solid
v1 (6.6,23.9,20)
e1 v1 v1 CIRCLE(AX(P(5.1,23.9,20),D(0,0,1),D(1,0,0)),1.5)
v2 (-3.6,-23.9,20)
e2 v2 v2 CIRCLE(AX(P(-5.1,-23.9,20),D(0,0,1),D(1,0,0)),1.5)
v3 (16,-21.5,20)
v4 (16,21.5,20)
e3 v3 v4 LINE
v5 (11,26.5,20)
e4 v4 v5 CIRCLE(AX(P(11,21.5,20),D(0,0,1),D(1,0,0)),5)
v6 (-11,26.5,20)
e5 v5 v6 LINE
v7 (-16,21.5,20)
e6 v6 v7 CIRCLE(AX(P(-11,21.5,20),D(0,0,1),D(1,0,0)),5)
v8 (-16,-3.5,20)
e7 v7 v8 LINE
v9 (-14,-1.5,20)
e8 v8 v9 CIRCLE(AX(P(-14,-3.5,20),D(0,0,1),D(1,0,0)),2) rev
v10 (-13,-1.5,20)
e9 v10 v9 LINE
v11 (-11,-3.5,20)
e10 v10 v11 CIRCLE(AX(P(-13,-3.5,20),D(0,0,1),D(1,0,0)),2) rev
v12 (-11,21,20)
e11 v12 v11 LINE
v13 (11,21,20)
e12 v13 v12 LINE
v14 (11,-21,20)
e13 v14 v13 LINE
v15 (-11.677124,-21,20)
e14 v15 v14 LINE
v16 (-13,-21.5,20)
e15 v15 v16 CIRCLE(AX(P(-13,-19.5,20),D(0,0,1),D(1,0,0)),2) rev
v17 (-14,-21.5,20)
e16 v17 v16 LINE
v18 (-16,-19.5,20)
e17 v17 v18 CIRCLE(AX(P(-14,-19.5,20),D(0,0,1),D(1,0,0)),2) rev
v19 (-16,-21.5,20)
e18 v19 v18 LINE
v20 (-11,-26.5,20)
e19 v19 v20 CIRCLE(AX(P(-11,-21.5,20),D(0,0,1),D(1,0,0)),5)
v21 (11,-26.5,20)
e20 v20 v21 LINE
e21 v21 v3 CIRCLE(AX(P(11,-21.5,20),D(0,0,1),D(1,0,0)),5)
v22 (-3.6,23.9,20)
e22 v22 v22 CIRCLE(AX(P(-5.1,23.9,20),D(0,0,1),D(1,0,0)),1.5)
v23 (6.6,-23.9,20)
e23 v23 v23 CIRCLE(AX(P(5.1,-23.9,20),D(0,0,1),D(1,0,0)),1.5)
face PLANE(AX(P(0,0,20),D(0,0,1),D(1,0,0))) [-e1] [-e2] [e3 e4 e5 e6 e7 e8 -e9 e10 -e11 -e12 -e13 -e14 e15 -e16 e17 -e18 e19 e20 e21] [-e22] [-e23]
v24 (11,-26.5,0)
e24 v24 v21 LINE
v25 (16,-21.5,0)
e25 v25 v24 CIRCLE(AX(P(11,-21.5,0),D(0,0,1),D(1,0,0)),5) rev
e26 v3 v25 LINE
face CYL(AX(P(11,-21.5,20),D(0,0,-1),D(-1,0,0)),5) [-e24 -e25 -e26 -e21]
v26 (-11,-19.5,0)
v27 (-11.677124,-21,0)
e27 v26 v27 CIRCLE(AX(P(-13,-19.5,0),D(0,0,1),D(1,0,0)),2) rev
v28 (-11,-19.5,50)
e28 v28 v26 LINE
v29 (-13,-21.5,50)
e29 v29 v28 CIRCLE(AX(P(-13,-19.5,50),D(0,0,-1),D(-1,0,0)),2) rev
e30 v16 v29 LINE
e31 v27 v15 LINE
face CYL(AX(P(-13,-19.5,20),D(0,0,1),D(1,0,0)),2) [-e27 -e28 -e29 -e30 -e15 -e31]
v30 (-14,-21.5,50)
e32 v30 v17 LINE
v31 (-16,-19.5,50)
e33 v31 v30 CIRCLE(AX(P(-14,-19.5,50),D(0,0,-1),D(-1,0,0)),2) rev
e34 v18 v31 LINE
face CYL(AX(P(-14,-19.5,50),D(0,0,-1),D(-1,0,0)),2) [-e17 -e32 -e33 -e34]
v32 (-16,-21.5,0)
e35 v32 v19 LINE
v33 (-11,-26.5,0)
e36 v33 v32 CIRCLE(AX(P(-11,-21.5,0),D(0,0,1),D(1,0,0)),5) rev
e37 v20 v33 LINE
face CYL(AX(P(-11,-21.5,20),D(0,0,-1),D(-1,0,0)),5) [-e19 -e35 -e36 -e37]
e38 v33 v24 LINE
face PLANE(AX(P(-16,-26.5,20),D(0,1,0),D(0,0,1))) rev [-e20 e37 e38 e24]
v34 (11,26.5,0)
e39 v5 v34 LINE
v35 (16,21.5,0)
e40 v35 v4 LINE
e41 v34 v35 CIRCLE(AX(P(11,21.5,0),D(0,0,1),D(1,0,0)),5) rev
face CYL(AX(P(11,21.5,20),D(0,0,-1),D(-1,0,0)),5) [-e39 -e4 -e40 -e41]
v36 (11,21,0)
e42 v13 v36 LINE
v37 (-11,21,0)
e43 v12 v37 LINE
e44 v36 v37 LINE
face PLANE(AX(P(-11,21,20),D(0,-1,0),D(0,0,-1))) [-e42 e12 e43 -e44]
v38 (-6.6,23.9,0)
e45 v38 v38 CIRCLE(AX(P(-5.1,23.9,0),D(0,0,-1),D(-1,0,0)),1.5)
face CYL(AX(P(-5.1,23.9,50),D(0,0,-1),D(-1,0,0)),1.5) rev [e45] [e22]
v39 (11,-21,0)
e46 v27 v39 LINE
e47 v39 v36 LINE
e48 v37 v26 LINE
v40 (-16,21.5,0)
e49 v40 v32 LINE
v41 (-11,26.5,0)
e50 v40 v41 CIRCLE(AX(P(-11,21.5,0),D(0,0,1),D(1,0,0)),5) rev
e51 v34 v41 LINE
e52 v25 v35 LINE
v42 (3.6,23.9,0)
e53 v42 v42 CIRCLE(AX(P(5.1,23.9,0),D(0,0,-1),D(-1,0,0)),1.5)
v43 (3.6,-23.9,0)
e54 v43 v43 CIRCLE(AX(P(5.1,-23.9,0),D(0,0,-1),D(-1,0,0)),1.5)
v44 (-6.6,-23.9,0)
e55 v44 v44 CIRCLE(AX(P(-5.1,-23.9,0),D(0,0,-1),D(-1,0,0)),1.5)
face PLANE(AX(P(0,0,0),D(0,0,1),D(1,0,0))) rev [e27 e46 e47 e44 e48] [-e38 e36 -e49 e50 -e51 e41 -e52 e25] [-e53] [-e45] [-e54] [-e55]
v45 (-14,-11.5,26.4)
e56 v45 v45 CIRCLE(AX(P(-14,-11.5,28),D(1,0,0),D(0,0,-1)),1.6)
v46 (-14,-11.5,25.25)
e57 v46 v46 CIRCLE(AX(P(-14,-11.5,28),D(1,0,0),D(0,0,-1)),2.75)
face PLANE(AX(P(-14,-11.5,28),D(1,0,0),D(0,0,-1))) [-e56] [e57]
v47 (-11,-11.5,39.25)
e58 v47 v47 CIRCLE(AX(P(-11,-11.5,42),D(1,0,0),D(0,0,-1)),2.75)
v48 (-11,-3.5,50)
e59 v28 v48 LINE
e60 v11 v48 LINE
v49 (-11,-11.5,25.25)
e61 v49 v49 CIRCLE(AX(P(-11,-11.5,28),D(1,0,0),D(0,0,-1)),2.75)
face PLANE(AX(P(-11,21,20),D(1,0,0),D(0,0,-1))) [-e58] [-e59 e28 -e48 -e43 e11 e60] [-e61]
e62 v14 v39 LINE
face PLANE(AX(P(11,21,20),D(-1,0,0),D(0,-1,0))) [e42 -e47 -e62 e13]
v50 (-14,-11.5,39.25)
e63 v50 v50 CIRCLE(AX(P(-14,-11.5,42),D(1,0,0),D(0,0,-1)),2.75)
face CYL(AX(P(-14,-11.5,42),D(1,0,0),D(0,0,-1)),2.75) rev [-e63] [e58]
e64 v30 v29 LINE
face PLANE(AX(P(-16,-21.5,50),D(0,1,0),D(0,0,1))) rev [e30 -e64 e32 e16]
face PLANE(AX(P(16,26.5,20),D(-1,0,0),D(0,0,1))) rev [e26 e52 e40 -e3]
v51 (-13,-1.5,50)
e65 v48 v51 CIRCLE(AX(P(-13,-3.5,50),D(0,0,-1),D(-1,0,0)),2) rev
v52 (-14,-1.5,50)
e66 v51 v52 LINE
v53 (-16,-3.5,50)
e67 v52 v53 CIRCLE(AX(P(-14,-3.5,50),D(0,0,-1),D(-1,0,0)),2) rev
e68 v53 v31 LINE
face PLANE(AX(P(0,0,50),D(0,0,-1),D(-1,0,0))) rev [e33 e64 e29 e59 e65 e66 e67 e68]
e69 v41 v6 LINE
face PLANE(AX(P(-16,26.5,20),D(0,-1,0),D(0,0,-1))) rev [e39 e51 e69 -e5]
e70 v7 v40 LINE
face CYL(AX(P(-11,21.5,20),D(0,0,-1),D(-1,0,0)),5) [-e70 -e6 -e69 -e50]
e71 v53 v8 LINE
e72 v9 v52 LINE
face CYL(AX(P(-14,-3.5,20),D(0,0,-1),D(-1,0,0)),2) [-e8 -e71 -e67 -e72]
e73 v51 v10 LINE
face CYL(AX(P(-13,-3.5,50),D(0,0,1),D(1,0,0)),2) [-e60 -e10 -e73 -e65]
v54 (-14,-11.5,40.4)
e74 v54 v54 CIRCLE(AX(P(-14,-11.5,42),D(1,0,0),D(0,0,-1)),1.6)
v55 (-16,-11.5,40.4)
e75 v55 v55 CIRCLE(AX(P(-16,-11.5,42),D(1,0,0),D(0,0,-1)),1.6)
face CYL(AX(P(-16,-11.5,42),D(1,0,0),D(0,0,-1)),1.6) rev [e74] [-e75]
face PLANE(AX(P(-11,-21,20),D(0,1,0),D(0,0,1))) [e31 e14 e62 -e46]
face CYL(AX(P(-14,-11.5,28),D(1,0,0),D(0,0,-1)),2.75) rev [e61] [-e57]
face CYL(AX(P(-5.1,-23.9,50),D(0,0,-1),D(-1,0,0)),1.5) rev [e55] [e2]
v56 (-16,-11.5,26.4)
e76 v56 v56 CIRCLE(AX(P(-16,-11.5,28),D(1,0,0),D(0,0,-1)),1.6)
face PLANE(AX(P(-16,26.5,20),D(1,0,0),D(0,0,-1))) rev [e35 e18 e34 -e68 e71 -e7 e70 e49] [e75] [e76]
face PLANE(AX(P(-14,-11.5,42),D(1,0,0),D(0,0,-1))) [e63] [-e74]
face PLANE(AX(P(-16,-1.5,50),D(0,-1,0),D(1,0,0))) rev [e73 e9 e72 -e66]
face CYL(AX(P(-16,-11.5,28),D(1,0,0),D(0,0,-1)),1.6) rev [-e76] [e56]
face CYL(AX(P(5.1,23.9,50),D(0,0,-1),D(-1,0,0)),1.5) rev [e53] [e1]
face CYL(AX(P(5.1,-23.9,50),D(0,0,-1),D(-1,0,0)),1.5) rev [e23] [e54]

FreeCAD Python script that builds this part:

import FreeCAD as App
import Part
import Sketcher
Q = App.Units.Quantity


def edges_at(feature, points):
    """Names of the edges that pass closest to the given points."""
    edges = feature.Shape.Edges
    near = lambda p: min(range(len(edges)), key=lambda i: edges[i].distToShape(Part.Vertex(*p))[0])
    return sorted({f"Edge{near(p) + 1}" for p in points})

doc = App.newDocument("Part")
params = doc.addObject("Spreadsheet::Sheet", "Params")
for row, (alias, value) in enumerate([
    ("sketch1_width", "32 mm"),
    ("sketch1_width2", "22 mm"),
    ("sketch1_height", "53 mm"),
    ("sketch1_height2", "42 mm"),
    ("pad1_length", "20 mm"),
    ("sketch2_width", "5 mm"),
    ("sketch2_height", "20 mm"),
    ("pad2_length", "30 mm"),
    ("sketch3_diameter", "5.5 mm"),
    ("sketch3_diameter2", "3.2 mm"),
    ("pocket1_length", "3 mm"),
    ("sketch4_diameter", "3.2 mm"),
    ("sketch5_diameter", "3 mm"),
    ("fillet_radius", "5 mm"),
    ("fillet2_radius", "2 mm"),
], start=1):
    params.set(f"A{row}", alias)
    params.set(f"B{row}", "=" + value)
    params.setAlias(f"B{row}", alias)

body = doc.addObject("PartDesign::Body", "Body")

# Sketch on XY plane
sketch1 = body.newObject("Sketcher::SketchObject", "Sketch")
sketch1.AttachmentSupport = (doc.getObject("XY_Plane"), [""])
sketch1.MapMode = "FlatFace"
sketch1.addGeometry([
    Part.LineSegment(App.Vector(-16, 26, 0), App.Vector(-16, -26, 0)),  # 0
    Part.LineSegment(App.Vector(-16, -26, 0), App.Vector(16, -26, 0)),  # 1
    Part.LineSegment(App.Vector(16, -26, 0), App.Vector(16, 26, 0)),  # 2
    Part.LineSegment(App.Vector(16, 26, 0), App.Vector(-16, 26, 0)),  # 3
    Part.LineSegment(App.Vector(11, -21, 0), App.Vector(-11, -21, 0)),  # 4
    Part.LineSegment(App.Vector(-11, -21, 0), App.Vector(-11, 21, 0)),  # 5
    Part.LineSegment(App.Vector(-11, 21, 0), App.Vector(11, 21, 0)),  # 6
    Part.LineSegment(App.Vector(11, 21, 0), App.Vector(11, -21, 0)),  # 7
], False)
sketch1.addConstraint([
    Sketcher.Constraint("Coincident", 0, 2, 1, 1),
    Sketcher.Constraint("Coincident", 1, 2, 2, 1),
    Sketcher.Constraint("Coincident", 2, 2, 3, 1),
    Sketcher.Constraint("Coincident", 3, 2, 0, 1),
    Sketcher.Constraint("Coincident", 4, 2, 5, 1),
    Sketcher.Constraint("Coincident", 5, 2, 6, 1),
    Sketcher.Constraint("Coincident", 6, 2, 7, 1),
    Sketcher.Constraint("Coincident", 7, 2, 4, 1),
    Sketcher.Constraint("Vertical", 0),
    Sketcher.Constraint("Horizontal", 1),
    Sketcher.Constraint("Vertical", 2),
    Sketcher.Constraint("Horizontal", 3),
    Sketcher.Constraint("Horizontal", 4),
    Sketcher.Constraint("Vertical", 5),
    Sketcher.Constraint("Horizontal", 6),
    Sketcher.Constraint("Vertical", 7),
    Sketcher.Constraint("Symmetric", 0, 2, 2, 2, -1, 1),
    Sketcher.Constraint("Symmetric", 4, 2, 6, 2, -1, 1),
    Sketcher.Constraint("DistanceX", 1, 1, 1, 2, Q("32 mm")),
    Sketcher.Constraint("DistanceX", 4, 2, 4, 1, Q("22 mm")),
    Sketcher.Constraint("DistanceY", 0, 2, 0, 1, Q("53 mm")),
    Sketcher.Constraint("DistanceY", 5, 1, 5, 2, Q("42 mm")),
])
sketch1.setExpression("Constraints[18]", "Params.sketch1_width")
sketch1.setExpression("Constraints[19]", "Params.sketch1_width2")
sketch1.setExpression("Constraints[20]", "Params.sketch1_height")
sketch1.setExpression("Constraints[21]", "Params.sketch1_height2")
pad1 = body.newObject("PartDesign::Pad", "Pad")
pad1.Profile = sketch1
pad1.setExpression("Length", "Params.pad1_length")

# Sketch on XY plane
sketch2 = body.newObject("Sketcher::SketchObject", "Sketch001")
sketch2.AttachmentSupport = (doc.getObject("XY_Plane"), [""])
sketch2.MapMode = "FlatFace"
sketch2.AttachmentOffset = App.Placement(App.Vector(0, 0, 20), App.Rotation())
sketch2.addGeometry([
    Part.LineSegment(App.Vector(-16, -2, 0), App.Vector(-16, -22, 0)),
    Part.LineSegment(App.Vector(-16, -22, 0), App.Vector(-11, -22, 0)),
    Part.LineSegment(App.Vector(-11, -22, 0), App.Vector(-11, -2, 0)),
    Part.LineSegment(App.Vector(-11, -2, 0), App.Vector(-16, -2, 0)),
], False)
sketch2.addConstraint([
    Sketcher.Constraint("Coincident", 0, 2, 1, 1),
    Sketcher.Constraint("Coincident", 1, 2, 2, 1),
    Sketcher.Constraint("Coincident", 2, 2, 3, 1),
    Sketcher.Constraint("Coincident", 3, 2, 0, 1),
    Sketcher.Constraint("Vertical", 0),
    Sketcher.Constraint("Horizontal", 1),
    Sketcher.Constraint("Vertical", 2),
    Sketcher.Constraint("Horizontal", 3),
    Sketcher.Constraint("DistanceX", 1, 1, 1, 2, Q("5 mm")),
    Sketcher.Constraint("DistanceY", 0, 2, 0, 1, Q("20 mm")),
    Sketcher.Constraint("DistanceX", 0, 2, -1, 1, Q("16 mm")),
    Sketcher.Constraint("DistanceY", 0, 2, -1, 1, Q("21.5 mm")),
])
sketch2.setExpression("Constraints[8]", "Params.sketch2_width")
sketch2.setExpression("Constraints[9]", "Params.sketch2_height")
pad2 = body.newObject("PartDesign::Pad", "Pad001")
pad2.Profile = sketch2
pad2.setExpression("Length", "Params.pad2_length")

# Sketch on YZ plane
sketch3 = body.newObject("Sketcher::SketchObject", "Sketch002")
sketch3.AttachmentSupport = (doc.getObject("YZ_Plane"), [""])
sketch3.MapMode = "FlatFace"
sketch3.AttachmentOffset = App.Placement(App.Vector(0, 0, -11), App.Rotation())
sketch3.addGeometry([
    Part.Circle(App.Vector(-11.5, 42, 0), App.Vector(0, 0, 1), 2.8),
    Part.Circle(App.Vector(-11.5, 42, 0), App.Vector(0, 0, 1), 1.6),
    Part.Circle(App.Vector(-11.5, 28, 0), App.Vector(0, 0, 1), 2.8),
    Part.Circle(App.Vector(-11.5, 28, 0), App.Vector(0, 0, 1), 1.6),
], False)
sketch3.addConstraint([
    Sketcher.Constraint("Coincident", 1, 3, 0, 3),
    Sketcher.Constraint("Coincident", 3, 3, 2, 3),
    Sketcher.Constraint("Equal", 0, 2),
    Sketcher.Constraint("Equal", 1, 3),
    Sketcher.Constraint("Vertical", 1, 3, 2, 3),
    Sketcher.Constraint("Diameter", 0, Q("5.5 mm")),
    Sketcher.Constraint("Diameter", 1, Q("3.2 mm")),
    Sketcher.Constraint("DistanceY", -1, 1, 0, 3, Q("42 mm")),
    Sketcher.Constraint("DistanceY", -1, 1, 2, 3, Q("28 mm")),
    Sketcher.Constraint("DistanceX", 0, 3, -1, 1, Q("11.5 mm")),
])
sketch3.setExpression("Constraints[5]", "Params.sketch3_diameter")
sketch3.setExpression("Constraints[6]", "Params.sketch3_diameter2")
pocket1 = body.newObject("PartDesign::Pocket", "Pocket")
pocket1.Profile = sketch3
pocket1.setExpression("Length", "Params.pocket1_length")

# Sketch on YZ plane
sketch4 = body.newObject("Sketcher::SketchObject", "Sketch003")
sketch4.AttachmentSupport = (doc.getObject("YZ_Plane"), [""])
sketch4.MapMode = "FlatFace"
sketch4.AttachmentOffset = App.Placement(App.Vector(0, 0, -11), App.Rotation())
sketch4.addGeometry([
    Part.Circle(App.Vector(-11.5, 42, 0), App.Vector(0, 0, 1), 1.6),
    Part.Circle(App.Vector(-11.5, 28, 0), App.Vector(0, 0, 1), 1.6),
], False)
sketch4.addConstraint([
    Sketcher.Constraint("Equal", 0, 1),
    Sketcher.Constraint("Vertical", 0, 3, 1, 3),
    Sketcher.Constraint("Diameter", 0, Q("3.2 mm")),
    Sketcher.Constraint("DistanceY", -1, 1, 0, 3, Q("42 mm")),
    Sketcher.Constraint("DistanceY", -1, 1, 1, 3, Q("28 mm")),
    Sketcher.Constraint("DistanceX", 0, 3, -1, 1, Q("11.5 mm")),
])
sketch4.setExpression("Constraints[2]", "Params.sketch4_diameter")
pocket2 = body.newObject("PartDesign::Pocket", "Pocket001")
pocket2.Profile = sketch4
pocket2.Type = "ThroughAll"

# Sketch on XY plane
sketch5 = body.newObject("Sketcher::SketchObject", "Sketch004")
sketch5.AttachmentSupport = (doc.getObject("XY_Plane"), [""])
sketch5.MapMode = "FlatFace"
sketch5.addGeometry([
    Part.Circle(App.Vector(5.1, -23.9, 0), App.Vector(0, 0, 1), 1.5),
    Part.Circle(App.Vector(-5.1, -23.9, 0), App.Vector(0, 0, 1), 1.5),
    Part.Circle(App.Vector(5.1, 23.9, 0), App.Vector(0, 0, 1), 1.5),
    Part.Circle(App.Vector(-5.1, 23.9, 0), App.Vector(0, 0, 1), 1.5),
], False)
sketch5.addConstraint([
    Sketcher.Constraint("Equal", 0, 1),
    Sketcher.Constraint("Equal", 1, 2),
    Sketcher.Constraint("Equal", 2, 3),
    Sketcher.Constraint("Symmetric", 1, 3, 2, 3, -1, 1),
    Sketcher.Constraint("Symmetric", 0, 3, 3, 3, -1, 1),
    Sketcher.Constraint("Symmetric", 0, 3, 1, 3, -2),
    Sketcher.Constraint("Diameter", 0, Q("3 mm")),
    Sketcher.Constraint("DistanceX", -1, 1, 0, 3, Q("5.1 mm")),
    Sketcher.Constraint("DistanceY", 0, 3, -1, 1, Q("23.9 mm")),
])
sketch5.setExpression("Constraints[6]", "Params.sketch5_diameter")
pocket3 = body.newObject("PartDesign::Pocket", "Pocket002")
pocket3.Profile = sketch5
pocket3.Type = "ThroughAll"
pocket3.Reversed = True
doc.recompute()

fillet = body.newObject("PartDesign::Fillet", "Fillet")
fillet.Base = (pocket3, edges_at(pocket3, [
    (16, -26.5, 10),
    (-16, -26.5, 10),
    (-16, 26.5, 10),
    (16, 26.5, 10),
]))
fillet.setExpression("Radius", "Params.fillet_radius")
doc.recompute()

fillet2 = body.newObject("PartDesign::Fillet", "Fillet001")
fillet2.Base = (fillet, edges_at(fillet, [
    (-16, -1.5, 35),
    (-16, -21.5, 35),
    (-11, -1.5, 35),
    (-11, -21.5, 35),
]))
fillet2.setExpression("Radius", "Params.fillet2_radius")

doc.recompute()
